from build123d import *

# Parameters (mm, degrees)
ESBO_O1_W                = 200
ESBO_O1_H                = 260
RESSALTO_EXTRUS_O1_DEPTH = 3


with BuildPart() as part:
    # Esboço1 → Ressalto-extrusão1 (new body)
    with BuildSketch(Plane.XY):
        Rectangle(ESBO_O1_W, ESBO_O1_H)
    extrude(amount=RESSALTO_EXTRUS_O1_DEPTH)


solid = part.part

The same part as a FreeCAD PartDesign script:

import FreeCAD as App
import Part
import Sketcher
from FreeCAD import Vector


def add_polygon(sketch, points):
    """Adds a closed chain of lines whose ends are joined by coincident constraints."""
    first, n = sketch.GeometryCount, len(points)
    for a, b in zip(points, points[1:] + points[:1]):
        sketch.addGeometry(Part.LineSegment(App.Vector(*a, 0), App.Vector(*b, 0)), False)
    for i in range(n):
        sketch.addConstraint(Sketcher.Constraint("Coincident", first + i, 2, first + (i + 1) % n, 1))

doc = App.newDocument("Part")
body = doc.addObject("PartDesign::Body", "Body")

# Sketch on XY plane
sketch1 = body.newObject("Sketcher::SketchObject", "Sketch")
sketch1.AttachmentSupport = (doc.getObject("XY_Plane"), [""])
sketch1.MapMode = "FlatFace"
add_polygon(sketch1, [(-100, 130), (-100, -130), (100, -130), (100, 130)])  # lines 0-3
sketch1.addConstraint([
    Sketcher.Constraint("Vertical", 0),
    Sketcher.Constraint("Horizontal", 1),
    Sketcher.Constraint("Vertical", 2),
    Sketcher.Constraint("Horizontal", 3),
    Sketcher.Constraint("Symmetric", 0, 2, 2, 2, -1, 1),
    Sketcher.Constraint("DistanceX", 1, 1, 1, 2, 200.0),
    Sketcher.Constraint("DistanceY", 0, 2, 0, 1, 260.0),
])
pad1 = body.newObject("PartDesign::Pad", "Pad")
pad1.Profile = sketch1
pad1.Length = 3

doc.recompute()
